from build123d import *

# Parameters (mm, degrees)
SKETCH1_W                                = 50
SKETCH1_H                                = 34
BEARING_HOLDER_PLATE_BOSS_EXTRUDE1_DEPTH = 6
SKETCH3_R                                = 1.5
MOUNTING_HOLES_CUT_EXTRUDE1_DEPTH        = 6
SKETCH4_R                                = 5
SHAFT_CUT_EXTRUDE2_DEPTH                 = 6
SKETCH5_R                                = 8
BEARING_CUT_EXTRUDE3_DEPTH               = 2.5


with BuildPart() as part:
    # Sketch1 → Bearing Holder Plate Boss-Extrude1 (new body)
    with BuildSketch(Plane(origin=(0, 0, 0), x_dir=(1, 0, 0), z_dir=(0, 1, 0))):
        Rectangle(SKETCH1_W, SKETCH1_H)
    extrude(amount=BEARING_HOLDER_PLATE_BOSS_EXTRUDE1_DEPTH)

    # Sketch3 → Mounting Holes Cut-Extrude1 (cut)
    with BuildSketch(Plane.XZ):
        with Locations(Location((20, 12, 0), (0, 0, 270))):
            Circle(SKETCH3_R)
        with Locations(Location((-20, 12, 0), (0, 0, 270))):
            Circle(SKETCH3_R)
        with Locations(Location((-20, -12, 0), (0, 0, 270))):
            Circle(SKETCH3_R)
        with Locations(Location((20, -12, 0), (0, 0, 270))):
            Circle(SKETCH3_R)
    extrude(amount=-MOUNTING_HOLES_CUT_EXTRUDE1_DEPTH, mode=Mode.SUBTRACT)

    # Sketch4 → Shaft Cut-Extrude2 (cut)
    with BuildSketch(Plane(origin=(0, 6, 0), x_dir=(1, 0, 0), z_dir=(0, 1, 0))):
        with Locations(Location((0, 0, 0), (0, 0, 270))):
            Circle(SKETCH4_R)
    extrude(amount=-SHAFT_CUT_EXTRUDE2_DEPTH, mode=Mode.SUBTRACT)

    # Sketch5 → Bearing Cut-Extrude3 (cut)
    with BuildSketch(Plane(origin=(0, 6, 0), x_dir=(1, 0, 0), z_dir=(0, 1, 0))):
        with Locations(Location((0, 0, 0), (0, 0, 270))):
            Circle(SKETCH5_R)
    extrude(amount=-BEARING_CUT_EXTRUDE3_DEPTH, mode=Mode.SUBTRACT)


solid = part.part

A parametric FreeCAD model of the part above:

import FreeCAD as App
import Part
import Sketcher

V = App.Vector
Q = App.Units.Quantity


def add_polygon(sketch, points):
    """Adds a closed chain of lines whose ends are joined by coincident constraints."""
    first, n = sketch.GeometryCount, len(points)
    for a, b in zip(points, points[1:] + points[:1]):
        sketch.addGeometry(Part.LineSegment(App.Vector(*a, 0), App.Vector(*b, 0)), False)
    for i in range(n):
        sketch.addConstraint(Sketcher.Constraint("Coincident", first + i, 2, first + (i + 1) % n, 1))

doc = App.newDocument("Part")
body = doc.addObject("PartDesign::Body", "Body")

sketch1 = body.newObject("Sketcher::SketchObject", "Sketch")
sketch1.AttachmentSupport = (doc.getObject("XZ_Plane"), [""])
sketch1.MapMode = "FlatFace"
add_polygon(sketch1, [(-25, -17), (-25, 17), (25, 17), (25, -17)])
sketch1.addConstraint([
    Sketcher.Constraint("Vertical", 0),
    Sketcher.Constraint("Horizontal", 1),
    Sketcher.Constraint("Vertical", 2),
    Sketcher.Constraint("Horizontal", 3),
    Sketcher.Constraint("Symmetric", 0, 2, 2, 2, -1, 1),
    Sketcher.Constraint("DistanceX", 1, 1, 1, 2, Q("50 mm")),
    Sketcher.Constraint("DistanceY", 0, 1, 0, 2, Q("34 mm")),
])
pad1 = body.newObject("PartDesign::Pad", "Pad")
pad1.Profile = sketch1
pad1.Length = 6
pad1.Reversed = True

sketch2 = body.newObject("Sketcher::SketchObject", "Sketch001")
sketch2.AttachmentSupport = (doc.getObject("XZ_Plane"), [""])
sketch2.MapMode = "FlatFace"
sketch2.addGeometry([
    Part.Circle(V(20, 12, 0), V(0, 0, 1), 1.5),
    Part.Circle(V(-20, 12, 0), V(0, 0, 1), 1.5),
    Part.Circle(V(-20, -12, 0), V(0, 0, 1), 1.5),
    Part.Circle(V(20, -12, 0), V(0, 0, 1), 1.5),
], False)
sketch2.addConstraint([
    Sketcher.Constraint("Equal", 0, 1),
    Sketcher.Constraint("Equal", 1, 2),
    Sketcher.Constraint("Equal", 2, 3),
    Sketcher.Constraint("Symmetric", 0, 3, 2, 3, -1, 1),
    Sketcher.Constraint("Symmetric", 1, 3, 3, 3, -1, 1),
    Sketcher.Constraint("Symmetric", 0, 3, 1, 3, -2),
    Sketcher.Constraint("Diameter", 0, Q("3 mm")),
    Sketcher.Constraint("DistanceX", -1, 1, 0, 3, Q("20 mm")),
    Sketcher.Constraint("DistanceY", -1, 1, 0, 3, Q("12 mm")),
])
pocket1 = body.newObject("PartDesign::Pocket", "Pocket")
pocket1.Profile = sketch2
pocket1.Length = 6

sketch3 = body.newObject("Sketcher::SketchObject", "Sketch002")
sketch3.AttachmentSupport = (doc.getObject("XZ_Plane"), [""])
sketch3.MapMode = "FlatFace"
sketch3.AttachmentOffset = App.Placement(V(0, 0, -6), App.Rotation())
sketch3.addGeometry(Part.Circle(V(0, 0, 0), V(0, 0, 1), 5), False)
sketch3.addConstraint([
    Sketcher.Constraint("Coincident", 0, 3, -1, 1),
    Sketcher.Constraint("Diameter", 0, Q("10 mm")),
])
pocket2 = body.newObject("PartDesign::Pocket", "Pocket001")
pocket2.Profile = sketch3
pocket2.Length = 6
pocket2.Reversed = True

sketch4 = body.newObject("Sketcher::SketchObject", "Sketch003")
sketch4.AttachmentSupport = (doc.getObject("XZ_Plane"), [""])
sketch4.MapMode = "FlatFace"
sketch4.AttachmentOffset = App.Placement(V(0, 0, -6), App.Rotation())
sketch4.addGeometry(Part.Circle(V(0, 0, 0), V(0, 0, 1), 8), False)
sketch4.addConstraint([
    Sketcher.Constraint("Coincident", 0, 3, -1, 1),
    Sketcher.Constraint("Diameter", 0, Q("16 mm")),
])
pocket3 = body.newObject("PartDesign::Pocket", "Pocket002")
pocket3.Profile = sketch4
pocket3.Length = 2.5
pocket3.Reversed = True

doc.recompute()
